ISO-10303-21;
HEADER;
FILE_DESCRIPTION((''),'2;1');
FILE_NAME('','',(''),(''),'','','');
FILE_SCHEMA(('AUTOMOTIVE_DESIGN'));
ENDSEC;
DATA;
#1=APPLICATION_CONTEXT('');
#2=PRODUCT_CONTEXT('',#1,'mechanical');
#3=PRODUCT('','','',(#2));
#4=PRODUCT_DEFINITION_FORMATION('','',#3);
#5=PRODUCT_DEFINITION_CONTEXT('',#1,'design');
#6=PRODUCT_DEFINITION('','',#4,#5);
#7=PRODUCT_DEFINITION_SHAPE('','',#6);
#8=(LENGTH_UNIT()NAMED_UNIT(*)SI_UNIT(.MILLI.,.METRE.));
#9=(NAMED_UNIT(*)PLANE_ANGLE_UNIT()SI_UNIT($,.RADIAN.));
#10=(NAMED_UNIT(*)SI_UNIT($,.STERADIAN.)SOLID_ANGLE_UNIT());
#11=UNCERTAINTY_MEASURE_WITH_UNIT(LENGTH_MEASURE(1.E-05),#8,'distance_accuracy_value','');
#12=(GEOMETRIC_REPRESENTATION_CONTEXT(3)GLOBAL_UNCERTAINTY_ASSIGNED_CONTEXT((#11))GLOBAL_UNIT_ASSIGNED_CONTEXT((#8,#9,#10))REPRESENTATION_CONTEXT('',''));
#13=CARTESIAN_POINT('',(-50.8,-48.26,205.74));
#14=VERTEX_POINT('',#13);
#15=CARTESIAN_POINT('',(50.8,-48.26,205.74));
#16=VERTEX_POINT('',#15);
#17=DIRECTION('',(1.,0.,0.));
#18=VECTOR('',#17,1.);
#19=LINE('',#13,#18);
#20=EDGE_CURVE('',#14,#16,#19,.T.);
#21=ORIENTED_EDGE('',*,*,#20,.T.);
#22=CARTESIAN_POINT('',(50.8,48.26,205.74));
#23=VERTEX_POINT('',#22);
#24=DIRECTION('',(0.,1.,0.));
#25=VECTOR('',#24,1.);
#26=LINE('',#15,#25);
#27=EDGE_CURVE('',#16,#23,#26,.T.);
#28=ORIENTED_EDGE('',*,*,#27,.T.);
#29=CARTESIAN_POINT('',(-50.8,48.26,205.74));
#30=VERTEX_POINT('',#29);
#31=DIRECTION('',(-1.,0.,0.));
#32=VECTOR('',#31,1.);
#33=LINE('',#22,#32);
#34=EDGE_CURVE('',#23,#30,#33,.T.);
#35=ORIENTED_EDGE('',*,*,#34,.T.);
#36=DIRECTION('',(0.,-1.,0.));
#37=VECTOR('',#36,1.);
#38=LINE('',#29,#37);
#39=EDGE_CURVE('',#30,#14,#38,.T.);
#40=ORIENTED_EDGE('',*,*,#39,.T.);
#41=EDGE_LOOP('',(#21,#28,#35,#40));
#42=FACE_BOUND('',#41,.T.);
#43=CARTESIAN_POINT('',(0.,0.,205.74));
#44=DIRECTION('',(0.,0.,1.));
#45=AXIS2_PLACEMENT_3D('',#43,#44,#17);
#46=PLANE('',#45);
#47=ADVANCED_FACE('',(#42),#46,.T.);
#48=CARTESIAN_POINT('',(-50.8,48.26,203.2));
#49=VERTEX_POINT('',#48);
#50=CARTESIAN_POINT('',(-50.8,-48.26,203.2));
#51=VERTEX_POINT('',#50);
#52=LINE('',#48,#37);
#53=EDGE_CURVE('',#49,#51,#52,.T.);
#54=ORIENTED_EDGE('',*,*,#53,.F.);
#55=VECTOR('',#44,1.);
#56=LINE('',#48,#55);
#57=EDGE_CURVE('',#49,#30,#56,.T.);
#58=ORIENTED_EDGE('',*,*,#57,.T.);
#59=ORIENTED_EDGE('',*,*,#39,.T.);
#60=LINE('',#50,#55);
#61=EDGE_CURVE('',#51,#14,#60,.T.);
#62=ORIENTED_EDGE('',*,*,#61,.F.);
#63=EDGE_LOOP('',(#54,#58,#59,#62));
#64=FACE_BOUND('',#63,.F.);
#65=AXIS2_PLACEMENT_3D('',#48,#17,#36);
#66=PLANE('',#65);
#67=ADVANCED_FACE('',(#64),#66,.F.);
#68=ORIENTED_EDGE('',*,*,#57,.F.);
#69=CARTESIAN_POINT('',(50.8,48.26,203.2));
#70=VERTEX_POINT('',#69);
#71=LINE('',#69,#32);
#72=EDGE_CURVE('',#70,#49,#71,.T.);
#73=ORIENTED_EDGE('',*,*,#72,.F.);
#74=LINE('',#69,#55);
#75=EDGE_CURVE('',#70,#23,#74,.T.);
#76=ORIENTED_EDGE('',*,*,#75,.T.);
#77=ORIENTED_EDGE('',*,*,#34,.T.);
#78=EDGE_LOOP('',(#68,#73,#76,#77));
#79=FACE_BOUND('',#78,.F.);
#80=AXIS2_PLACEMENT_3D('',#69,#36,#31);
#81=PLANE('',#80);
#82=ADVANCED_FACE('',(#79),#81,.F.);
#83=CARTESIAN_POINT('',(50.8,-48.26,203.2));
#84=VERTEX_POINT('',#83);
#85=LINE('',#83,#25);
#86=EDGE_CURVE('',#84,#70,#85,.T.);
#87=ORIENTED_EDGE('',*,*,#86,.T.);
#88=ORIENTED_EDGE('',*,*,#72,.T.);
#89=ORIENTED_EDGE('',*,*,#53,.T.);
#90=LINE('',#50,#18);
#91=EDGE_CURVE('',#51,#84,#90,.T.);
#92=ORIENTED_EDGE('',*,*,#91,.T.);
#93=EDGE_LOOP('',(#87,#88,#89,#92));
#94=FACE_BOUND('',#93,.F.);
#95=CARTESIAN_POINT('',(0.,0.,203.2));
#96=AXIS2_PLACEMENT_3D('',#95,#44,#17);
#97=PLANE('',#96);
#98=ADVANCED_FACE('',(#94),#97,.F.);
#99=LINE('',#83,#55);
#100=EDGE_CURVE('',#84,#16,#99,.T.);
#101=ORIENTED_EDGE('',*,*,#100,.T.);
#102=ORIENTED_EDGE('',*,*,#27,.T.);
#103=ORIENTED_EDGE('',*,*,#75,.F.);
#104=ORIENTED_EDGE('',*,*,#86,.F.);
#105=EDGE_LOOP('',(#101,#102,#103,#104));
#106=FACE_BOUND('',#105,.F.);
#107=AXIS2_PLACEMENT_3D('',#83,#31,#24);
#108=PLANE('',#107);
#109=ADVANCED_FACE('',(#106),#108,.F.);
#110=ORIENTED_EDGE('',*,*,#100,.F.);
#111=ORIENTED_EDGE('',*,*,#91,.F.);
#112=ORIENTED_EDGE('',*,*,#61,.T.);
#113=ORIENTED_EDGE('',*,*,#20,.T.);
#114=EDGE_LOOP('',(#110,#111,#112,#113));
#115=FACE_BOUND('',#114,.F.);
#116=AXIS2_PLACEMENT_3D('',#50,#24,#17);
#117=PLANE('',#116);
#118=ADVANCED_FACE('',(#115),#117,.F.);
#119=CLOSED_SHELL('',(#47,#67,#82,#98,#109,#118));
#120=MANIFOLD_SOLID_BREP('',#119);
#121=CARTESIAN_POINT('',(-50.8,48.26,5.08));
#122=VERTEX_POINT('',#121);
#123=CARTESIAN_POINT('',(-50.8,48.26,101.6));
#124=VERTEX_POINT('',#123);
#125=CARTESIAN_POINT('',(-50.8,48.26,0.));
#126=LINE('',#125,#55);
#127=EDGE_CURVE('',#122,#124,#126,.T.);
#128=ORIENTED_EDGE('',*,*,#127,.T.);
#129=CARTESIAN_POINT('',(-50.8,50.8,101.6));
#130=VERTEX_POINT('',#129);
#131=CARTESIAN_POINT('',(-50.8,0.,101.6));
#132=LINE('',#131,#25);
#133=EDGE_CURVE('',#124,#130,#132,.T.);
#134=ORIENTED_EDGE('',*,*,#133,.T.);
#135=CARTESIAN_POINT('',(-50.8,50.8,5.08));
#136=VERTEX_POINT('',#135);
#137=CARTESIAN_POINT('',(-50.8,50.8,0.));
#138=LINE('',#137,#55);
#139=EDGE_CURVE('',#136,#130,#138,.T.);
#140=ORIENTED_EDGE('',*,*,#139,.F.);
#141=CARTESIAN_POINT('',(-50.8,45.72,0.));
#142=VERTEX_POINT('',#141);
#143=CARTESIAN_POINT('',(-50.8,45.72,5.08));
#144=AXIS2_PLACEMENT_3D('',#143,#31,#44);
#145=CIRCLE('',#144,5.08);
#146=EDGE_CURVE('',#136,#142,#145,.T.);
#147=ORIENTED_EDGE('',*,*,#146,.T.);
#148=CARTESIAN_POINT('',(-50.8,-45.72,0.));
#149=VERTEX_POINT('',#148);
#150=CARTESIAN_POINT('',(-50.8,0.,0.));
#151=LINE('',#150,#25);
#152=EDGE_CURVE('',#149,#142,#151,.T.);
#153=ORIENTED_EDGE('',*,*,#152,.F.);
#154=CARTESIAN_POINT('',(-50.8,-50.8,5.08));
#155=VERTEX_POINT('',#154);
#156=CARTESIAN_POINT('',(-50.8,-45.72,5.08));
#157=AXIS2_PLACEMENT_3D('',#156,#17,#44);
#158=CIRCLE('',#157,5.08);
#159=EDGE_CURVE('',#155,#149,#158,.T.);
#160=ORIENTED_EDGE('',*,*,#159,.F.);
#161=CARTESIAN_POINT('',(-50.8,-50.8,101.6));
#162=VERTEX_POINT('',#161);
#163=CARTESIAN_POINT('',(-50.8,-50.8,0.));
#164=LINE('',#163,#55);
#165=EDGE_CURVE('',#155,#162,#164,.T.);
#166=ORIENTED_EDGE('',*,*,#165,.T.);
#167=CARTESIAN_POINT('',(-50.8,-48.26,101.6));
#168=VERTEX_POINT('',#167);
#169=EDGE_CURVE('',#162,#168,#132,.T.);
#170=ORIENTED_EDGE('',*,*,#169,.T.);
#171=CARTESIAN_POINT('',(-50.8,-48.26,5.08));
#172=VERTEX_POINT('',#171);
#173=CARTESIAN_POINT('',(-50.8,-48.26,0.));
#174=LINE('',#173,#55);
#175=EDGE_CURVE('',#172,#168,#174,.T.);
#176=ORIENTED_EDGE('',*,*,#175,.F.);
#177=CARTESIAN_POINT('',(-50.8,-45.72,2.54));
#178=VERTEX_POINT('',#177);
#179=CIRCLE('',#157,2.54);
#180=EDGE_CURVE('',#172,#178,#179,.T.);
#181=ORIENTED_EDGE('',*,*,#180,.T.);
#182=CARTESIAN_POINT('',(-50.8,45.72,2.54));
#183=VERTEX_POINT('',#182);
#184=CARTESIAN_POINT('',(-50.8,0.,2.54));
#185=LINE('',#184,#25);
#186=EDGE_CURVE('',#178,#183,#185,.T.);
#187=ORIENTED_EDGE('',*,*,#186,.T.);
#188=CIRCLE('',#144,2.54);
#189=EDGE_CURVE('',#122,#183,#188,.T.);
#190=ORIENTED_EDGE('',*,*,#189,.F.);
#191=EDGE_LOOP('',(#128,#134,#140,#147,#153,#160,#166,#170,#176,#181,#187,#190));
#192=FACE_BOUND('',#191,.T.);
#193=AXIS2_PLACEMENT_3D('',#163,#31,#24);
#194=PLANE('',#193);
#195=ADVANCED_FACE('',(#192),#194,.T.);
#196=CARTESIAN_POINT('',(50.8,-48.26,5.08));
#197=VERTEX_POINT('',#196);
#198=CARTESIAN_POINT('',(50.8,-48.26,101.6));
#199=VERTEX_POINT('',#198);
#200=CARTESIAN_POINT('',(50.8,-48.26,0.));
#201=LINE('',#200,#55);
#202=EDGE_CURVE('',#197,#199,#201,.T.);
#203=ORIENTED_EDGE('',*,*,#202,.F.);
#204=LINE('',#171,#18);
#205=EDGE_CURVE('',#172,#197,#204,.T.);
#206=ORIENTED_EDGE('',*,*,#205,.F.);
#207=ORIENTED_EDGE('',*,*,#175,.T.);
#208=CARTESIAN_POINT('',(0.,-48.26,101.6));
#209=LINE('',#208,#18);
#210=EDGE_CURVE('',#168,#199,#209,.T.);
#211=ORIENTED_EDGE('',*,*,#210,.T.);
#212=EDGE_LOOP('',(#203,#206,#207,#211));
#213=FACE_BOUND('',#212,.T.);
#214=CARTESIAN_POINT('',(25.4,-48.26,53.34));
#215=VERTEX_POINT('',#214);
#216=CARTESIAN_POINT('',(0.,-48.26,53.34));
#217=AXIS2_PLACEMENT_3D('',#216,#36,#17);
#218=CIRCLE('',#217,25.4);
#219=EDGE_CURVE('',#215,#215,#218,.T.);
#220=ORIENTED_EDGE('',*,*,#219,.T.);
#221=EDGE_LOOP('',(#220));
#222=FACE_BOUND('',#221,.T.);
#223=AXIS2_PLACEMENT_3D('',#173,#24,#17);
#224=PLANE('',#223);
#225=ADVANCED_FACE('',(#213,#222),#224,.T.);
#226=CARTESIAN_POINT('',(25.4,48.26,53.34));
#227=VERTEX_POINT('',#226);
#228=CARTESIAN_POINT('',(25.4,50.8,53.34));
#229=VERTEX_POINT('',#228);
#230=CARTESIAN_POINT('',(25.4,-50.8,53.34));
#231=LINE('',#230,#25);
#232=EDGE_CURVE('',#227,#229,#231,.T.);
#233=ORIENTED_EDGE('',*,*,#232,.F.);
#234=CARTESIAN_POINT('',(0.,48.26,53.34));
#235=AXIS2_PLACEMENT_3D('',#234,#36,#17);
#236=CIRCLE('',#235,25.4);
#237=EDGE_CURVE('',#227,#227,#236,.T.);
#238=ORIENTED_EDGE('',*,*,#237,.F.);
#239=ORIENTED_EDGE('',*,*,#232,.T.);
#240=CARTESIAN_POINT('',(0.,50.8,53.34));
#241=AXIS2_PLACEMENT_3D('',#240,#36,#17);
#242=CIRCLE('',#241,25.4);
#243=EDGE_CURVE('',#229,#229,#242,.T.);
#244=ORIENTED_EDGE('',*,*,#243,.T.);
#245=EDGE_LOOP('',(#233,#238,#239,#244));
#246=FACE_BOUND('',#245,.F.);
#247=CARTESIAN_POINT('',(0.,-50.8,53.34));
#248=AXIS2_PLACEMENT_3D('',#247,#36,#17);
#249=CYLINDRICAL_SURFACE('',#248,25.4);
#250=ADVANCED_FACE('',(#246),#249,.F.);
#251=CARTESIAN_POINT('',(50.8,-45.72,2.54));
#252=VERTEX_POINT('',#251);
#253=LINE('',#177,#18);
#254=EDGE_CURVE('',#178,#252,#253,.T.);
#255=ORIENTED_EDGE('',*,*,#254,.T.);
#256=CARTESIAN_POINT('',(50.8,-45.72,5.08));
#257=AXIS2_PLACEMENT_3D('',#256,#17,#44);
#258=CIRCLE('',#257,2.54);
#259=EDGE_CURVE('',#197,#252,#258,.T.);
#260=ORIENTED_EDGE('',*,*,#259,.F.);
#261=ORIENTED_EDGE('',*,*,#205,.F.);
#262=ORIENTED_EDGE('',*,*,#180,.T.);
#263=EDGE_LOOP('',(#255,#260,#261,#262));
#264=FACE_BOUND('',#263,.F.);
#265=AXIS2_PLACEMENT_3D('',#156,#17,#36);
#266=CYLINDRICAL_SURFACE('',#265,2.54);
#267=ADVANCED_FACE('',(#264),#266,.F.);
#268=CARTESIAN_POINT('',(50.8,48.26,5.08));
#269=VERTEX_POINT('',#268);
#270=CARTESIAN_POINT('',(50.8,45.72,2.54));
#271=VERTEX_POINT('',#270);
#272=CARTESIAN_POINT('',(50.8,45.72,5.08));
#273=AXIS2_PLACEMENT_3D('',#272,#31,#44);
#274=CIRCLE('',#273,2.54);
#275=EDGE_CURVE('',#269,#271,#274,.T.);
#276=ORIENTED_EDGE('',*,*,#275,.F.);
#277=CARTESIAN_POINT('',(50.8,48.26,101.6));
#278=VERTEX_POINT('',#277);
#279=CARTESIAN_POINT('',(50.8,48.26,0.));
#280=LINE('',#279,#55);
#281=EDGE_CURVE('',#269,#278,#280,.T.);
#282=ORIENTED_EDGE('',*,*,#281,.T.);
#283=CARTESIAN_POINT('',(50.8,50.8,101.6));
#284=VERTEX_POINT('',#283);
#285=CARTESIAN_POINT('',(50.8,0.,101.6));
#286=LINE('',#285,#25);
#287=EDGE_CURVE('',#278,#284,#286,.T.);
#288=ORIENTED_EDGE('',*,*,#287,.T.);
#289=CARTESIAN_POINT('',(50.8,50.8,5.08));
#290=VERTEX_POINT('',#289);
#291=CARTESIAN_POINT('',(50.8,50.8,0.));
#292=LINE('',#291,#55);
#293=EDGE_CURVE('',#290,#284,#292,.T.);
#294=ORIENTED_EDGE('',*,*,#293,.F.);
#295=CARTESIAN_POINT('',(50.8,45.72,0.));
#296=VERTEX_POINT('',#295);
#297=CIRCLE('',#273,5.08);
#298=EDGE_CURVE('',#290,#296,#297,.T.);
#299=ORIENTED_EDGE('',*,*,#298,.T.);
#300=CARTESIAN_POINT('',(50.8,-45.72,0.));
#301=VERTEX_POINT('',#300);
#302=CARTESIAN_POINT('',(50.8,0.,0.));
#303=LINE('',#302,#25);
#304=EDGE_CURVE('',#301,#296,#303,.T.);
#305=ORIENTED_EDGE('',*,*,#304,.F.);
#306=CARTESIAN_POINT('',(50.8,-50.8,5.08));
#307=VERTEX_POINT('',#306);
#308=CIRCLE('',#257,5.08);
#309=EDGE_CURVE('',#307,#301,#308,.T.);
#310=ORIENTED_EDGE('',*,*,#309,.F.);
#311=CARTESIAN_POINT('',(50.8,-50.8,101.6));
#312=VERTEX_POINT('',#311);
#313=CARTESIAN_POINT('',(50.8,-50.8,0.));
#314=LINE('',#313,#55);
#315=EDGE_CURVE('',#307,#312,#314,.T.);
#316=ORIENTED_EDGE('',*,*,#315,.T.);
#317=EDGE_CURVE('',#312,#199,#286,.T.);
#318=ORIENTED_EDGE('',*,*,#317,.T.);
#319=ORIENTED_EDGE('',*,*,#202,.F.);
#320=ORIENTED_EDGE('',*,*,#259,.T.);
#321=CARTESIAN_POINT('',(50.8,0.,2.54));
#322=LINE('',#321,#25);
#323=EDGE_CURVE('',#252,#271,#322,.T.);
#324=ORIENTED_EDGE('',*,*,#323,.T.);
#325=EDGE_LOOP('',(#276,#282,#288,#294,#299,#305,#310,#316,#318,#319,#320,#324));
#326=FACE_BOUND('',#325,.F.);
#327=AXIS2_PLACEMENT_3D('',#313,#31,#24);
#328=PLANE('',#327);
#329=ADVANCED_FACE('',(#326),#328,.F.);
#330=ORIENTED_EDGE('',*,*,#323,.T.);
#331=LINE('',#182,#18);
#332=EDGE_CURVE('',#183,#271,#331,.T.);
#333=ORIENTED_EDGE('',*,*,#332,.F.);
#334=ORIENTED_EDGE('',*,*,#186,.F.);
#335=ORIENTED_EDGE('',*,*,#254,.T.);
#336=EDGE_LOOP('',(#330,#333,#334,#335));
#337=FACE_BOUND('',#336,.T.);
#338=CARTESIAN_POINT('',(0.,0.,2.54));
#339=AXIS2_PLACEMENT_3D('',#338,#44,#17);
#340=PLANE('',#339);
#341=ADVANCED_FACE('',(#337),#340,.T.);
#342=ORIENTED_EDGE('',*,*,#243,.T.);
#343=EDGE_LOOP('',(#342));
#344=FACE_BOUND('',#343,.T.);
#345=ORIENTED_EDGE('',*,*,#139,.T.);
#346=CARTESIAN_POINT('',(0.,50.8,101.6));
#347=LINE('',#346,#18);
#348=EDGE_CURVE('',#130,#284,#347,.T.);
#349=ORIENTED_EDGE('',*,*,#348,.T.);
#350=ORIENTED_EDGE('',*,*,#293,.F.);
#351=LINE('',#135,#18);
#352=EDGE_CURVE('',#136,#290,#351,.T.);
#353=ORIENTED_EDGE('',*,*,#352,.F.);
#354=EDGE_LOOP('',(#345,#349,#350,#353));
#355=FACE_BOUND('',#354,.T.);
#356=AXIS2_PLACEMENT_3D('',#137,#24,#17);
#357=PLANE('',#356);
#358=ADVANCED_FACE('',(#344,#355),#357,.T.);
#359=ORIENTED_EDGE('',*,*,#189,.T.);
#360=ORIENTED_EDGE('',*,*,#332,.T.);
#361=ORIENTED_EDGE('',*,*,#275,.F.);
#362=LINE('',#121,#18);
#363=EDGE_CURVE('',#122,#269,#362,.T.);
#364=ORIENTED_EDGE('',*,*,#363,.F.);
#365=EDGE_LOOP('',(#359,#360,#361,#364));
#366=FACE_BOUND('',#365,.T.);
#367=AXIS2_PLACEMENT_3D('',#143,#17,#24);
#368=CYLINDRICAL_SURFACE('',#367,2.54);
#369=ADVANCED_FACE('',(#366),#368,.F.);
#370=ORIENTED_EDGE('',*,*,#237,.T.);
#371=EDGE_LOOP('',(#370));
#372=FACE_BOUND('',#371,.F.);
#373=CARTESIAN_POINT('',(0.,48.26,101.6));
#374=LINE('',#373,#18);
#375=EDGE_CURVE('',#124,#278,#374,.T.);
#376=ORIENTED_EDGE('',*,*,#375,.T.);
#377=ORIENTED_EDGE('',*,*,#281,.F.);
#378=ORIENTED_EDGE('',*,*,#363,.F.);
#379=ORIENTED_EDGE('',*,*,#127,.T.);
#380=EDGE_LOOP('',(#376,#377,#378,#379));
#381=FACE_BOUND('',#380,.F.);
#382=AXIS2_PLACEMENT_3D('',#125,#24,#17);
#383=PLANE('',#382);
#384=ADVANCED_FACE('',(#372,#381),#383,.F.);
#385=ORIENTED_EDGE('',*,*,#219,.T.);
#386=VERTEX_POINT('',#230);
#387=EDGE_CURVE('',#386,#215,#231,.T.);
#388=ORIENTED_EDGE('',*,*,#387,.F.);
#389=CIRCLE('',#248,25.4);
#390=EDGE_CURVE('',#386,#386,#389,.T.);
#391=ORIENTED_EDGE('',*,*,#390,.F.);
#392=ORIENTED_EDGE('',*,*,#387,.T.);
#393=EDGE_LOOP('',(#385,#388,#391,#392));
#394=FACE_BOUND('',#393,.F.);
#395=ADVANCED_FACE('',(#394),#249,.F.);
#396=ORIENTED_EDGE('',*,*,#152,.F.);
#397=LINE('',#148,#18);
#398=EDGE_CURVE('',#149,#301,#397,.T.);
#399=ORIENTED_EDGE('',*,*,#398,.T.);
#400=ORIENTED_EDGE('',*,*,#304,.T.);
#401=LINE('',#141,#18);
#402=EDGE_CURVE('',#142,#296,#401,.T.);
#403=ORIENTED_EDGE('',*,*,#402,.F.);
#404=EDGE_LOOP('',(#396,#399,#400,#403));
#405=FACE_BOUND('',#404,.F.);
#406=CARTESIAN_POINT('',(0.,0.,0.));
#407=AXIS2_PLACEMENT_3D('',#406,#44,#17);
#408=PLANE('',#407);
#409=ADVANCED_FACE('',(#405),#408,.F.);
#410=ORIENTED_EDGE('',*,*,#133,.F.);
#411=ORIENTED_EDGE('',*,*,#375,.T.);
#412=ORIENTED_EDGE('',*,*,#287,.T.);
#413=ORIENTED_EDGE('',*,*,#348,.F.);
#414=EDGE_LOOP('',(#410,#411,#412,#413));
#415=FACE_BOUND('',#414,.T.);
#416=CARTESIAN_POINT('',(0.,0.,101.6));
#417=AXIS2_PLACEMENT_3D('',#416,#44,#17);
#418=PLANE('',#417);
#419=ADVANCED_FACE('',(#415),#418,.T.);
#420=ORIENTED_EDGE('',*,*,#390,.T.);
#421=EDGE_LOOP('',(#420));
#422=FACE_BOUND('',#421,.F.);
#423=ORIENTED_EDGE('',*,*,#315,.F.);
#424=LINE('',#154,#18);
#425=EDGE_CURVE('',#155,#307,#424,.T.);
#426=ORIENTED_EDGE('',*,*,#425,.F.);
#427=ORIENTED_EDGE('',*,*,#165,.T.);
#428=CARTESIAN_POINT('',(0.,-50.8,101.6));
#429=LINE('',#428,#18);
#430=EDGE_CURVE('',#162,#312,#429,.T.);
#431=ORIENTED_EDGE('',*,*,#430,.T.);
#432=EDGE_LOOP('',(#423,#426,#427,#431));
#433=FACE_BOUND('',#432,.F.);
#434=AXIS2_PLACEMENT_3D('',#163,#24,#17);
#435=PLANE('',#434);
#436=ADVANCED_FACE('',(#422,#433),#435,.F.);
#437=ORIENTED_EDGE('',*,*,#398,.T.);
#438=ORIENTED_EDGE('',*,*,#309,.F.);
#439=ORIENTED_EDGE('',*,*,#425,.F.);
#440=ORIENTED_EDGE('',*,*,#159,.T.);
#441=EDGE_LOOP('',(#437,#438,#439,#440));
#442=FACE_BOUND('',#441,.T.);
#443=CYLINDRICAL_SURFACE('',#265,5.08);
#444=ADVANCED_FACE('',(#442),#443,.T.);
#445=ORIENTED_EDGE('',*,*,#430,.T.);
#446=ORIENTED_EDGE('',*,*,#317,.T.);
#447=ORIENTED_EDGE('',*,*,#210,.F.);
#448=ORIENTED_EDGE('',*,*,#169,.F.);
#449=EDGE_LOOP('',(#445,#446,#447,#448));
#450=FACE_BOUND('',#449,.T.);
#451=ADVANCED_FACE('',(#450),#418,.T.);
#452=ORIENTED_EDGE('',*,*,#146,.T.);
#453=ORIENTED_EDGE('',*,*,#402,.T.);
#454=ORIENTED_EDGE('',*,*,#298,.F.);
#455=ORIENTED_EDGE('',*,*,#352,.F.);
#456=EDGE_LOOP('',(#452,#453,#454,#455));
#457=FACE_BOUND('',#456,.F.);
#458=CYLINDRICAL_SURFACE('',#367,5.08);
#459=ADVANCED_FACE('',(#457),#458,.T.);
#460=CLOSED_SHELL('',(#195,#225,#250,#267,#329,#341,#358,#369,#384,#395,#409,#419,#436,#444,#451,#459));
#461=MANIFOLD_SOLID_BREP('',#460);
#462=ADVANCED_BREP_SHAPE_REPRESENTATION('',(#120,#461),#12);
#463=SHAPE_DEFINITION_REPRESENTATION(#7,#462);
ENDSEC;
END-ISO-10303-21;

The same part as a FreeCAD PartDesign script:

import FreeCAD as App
import Part
import Sketcher

V = App.Vector
Q = App.Units.Quantity


def edges_at(feature, points):
    """Names of the edges that pass closest to the given points."""
    edges = feature.Shape.Edges
    near = lambda p: min(range(len(edges)), key=lambda i: edges[i].distToShape(Part.Vertex(*p))[0])
    return sorted({f"Edge{near(p) + 1}" for p in points})


def faces_at(feature, points):
    """Names of the faces that lie closest to the given points."""
    faces = feature.Shape.Faces
    near = lambda p: min(range(len(faces)), key=lambda i: faces[i].distToShape(Part.Vertex(*p))[0])
    return sorted({f"Face{near(p) + 1}" for p in points})

doc = App.newDocument("Part")
body = doc.addObject("PartDesign::Body", "Body")

# Sketch on XY plane
sketch1 = body.newObject("Sketcher::SketchObject", "Sketch")
sketch1.AttachmentSupport = (doc.getObject("XY_Plane"), [""])
sketch1.MapMode = "FlatFace"
sketch1.addGeometry([
    Part.LineSegment(V(-50.8, 50.8, 0), V(-50.8, -50.8, 0)),
    Part.LineSegment(V(-50.8, -50.8, 0), V(50.8, -50.8, 0)),
    Part.LineSegment(V(50.8, -50.8, 0), V(50.8, 50.8, 0)),
    Part.LineSegment(V(50.8, 50.8, 0), V(-50.8, 50.8, 0)),
], False)
sketch1.addConstraint([
    Sketcher.Constraint("Coincident", 0, 2, 1, 1),
    Sketcher.Constraint("Coincident", 1, 2, 2, 1),
    Sketcher.Constraint("Coincident", 2, 2, 3, 1),
    Sketcher.Constraint("Coincident", 3, 2, 0, 1),
    Sketcher.Constraint("Vertical", 0),
    Sketcher.Constraint("Horizontal", 1),
    Sketcher.Constraint("Vertical", 2),
    Sketcher.Constraint("Horizontal", 3),
    Sketcher.Constraint("Symmetric", 0, 2, 2, 2, -1, 1),
    Sketcher.Constraint("Equal", 3, 0),
    Sketcher.Constraint("DistanceX", 1, 1, 1, 2, Q("4 in")),
])
pad1 = body.newObject("PartDesign::Pad", "Pad")
pad1.Profile = sketch1
pad1.Length = Q("4 in")
doc.recompute()

fillet = body.newObject("PartDesign::Fillet", "Fillet")
fillet.Base = (pad1, edges_at(pad1, [(0, -50.8, 0), (0, 50.8, 0)]))
fillet.Radius = Q("0.2 in")
doc.recompute()

thickness = body.newObject("PartDesign::Thickness", "Thickness")
thickness.Base = (fillet, faces_at(fillet, [(0, 0, 101.6), (-50.8, 0, 50.8), (50.8, 0, 50.8)]))
thickness.Value = Q("0.1 in")
thickness.Reversed = True
thickness.Join = "Arc"

# Sketch on XZ plane
sketch2 = body.newObject("Sketcher::SketchObject", "Sketch001")
sketch2.AttachmentSupport = (doc.getObject("XZ_Plane"), [""])
sketch2.MapMode = "FlatFace"
sketch2.AttachmentOffset = App.Placement(V(0, 0, 2 * 25.4), App.Rotation())
sketch2.addGeometry(Part.Circle(V(0, 53.34, 0), V(0, 0, 1), 25.4), False)
sketch2.addConstraint([
    Sketcher.Constraint("PointOnObject", 0, 3, -2),
    Sketcher.Constraint("Diameter", 0, Q("2 in")),
    Sketcher.Constraint("DistanceY", -1, 1, 0, 3, Q("2.1 in")),
])
pocket1 = body.newObject("PartDesign::Pocket", "Pocket")
pocket1.Profile = sketch2
pocket1.Type = "ThroughAll"
body2 = doc.addObject("PartDesign::Body", "Body001")

# Sketch on XY plane
sketch3 = body2.newObject("Sketcher::SketchObject", "Sketch002")
sketch3.AttachmentSupport = (doc.getObject("XY_Plane001"), [""])
sketch3.MapMode = "FlatFace"
sketch3.AttachmentOffset = App.Placement(V(0, 0, 8 * 25.4), App.Rotation())
sketch3.addGeometry([
    Part.LineSegment(V(-50.8, 48.26, 0), V(-50.8, -48.26, 0)),
    Part.LineSegment(V(-50.8, -48.26, 0), V(50.8, -48.26, 0)),
    Part.LineSegment(V(50.8, -48.26, 0), V(50.8, 48.26, 0)),
    Part.LineSegment(V(50.8, 48.26, 0), V(-50.8, 48.26, 0)),
], False)
sketch3.addConstraint([
    Sketcher.Constraint("Coincident", 0, 2, 1, 1),
    Sketcher.Constraint("Coincident", 1, 2, 2, 1),
    Sketcher.Constraint("Coincident", 2, 2, 3, 1),
    Sketcher.Constraint("Coincident", 3, 2, 0, 1),
    Sketcher.Constraint("Vertical", 0),
    Sketcher.Constraint("Horizontal", 1),
    Sketcher.Constraint("Vertical", 2),
    Sketcher.Constraint("Horizontal", 3),
    Sketcher.Constraint("Symmetric", 0, 2, 2, 2, -1, 1),
    Sketcher.Constraint("DistanceX", 1, 1, 1, 2, Q("4 in")),
    Sketcher.Constraint("DistanceY", 0, 2, 0, 1, Q("3.8 in")),
])
pad2 = body2.newObject("PartDesign::Pad", "Pad001")
pad2.Profile = sketch3
pad2.Length = Q("0.1 in")

doc.recompute()
